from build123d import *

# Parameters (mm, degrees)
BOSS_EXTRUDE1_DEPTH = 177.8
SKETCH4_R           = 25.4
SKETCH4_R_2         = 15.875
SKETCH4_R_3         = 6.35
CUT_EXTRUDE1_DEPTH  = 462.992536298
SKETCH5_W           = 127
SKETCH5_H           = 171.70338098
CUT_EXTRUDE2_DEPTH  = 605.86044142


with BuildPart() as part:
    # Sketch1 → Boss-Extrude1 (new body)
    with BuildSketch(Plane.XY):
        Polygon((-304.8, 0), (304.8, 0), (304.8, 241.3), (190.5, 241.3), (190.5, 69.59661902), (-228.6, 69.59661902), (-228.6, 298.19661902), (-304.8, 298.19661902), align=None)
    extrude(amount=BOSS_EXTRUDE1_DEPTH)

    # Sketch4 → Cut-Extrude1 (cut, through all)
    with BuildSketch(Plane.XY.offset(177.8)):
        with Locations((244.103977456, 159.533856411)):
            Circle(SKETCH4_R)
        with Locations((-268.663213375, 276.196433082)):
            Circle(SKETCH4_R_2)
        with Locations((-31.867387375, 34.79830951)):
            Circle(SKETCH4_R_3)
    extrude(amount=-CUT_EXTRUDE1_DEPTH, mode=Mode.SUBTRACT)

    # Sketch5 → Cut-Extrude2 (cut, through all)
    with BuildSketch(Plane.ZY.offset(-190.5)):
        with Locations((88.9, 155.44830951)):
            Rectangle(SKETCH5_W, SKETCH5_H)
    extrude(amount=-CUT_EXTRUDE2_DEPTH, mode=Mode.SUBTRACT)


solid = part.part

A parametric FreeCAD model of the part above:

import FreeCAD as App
import Part
import Sketcher
from FreeCAD import Vector
Q = App.Units.Quantity

doc = App.newDocument("Part")
body = doc.addObject("PartDesign::Body", "Body")

# Sketch on XY plane
sketch1 = body.newObject("Sketcher::SketchObject", "Sketch")
sketch1.AttachmentSupport = (doc.getObject("XY_Plane"), [""])
sketch1.MapMode = "FlatFace"
sketch1.addGeometry(Part.LineSegment(Vector(-305, 0, 0), Vector(305, 0, 0)), False)
sketch1.addGeometry(Part.LineSegment(Vector(305, 0, 0), Vector(305, 241, 0)), False)
sketch1.addGeometry(Part.LineSegment(Vector(305, 241, 0), Vector(190, 241, 0)), False)
sketch1.addGeometry(Part.LineSegment(Vector(190, 241, 0), Vector(190, 70, 0)), False)
sketch1.addGeometry(Part.LineSegment(Vector(190, 70, 0), Vector(-229, 70, 0)), False)
sketch1.addGeometry(Part.LineSegment(Vector(-229, 70, 0), Vector(-229, 298, 0)), False)
sketch1.addGeometry(Part.LineSegment(Vector(-229, 298, 0), Vector(-305, 298, 0)), False)
sketch1.addGeometry(Part.LineSegment(Vector(-305, 298, 0), Vector(-305, 0, 0)), False)
sketch1.addConstraint(Sketcher.Constraint("Coincident", 0, 2, 1, 1))
sketch1.addConstraint(Sketcher.Constraint("Coincident", 1, 2, 2, 1))
sketch1.addConstraint(Sketcher.Constraint("Coincident", 2, 2, 3, 1))
sketch1.addConstraint(Sketcher.Constraint("Coincident", 3, 2, 4, 1))
sketch1.addConstraint(Sketcher.Constraint("Coincident", 4, 2, 5, 1))
sketch1.addConstraint(Sketcher.Constraint("Coincident", 5, 2, 6, 1))
sketch1.addConstraint(Sketcher.Constraint("Coincident", 6, 2, 7, 1))
sketch1.addConstraint(Sketcher.Constraint("Coincident", 7, 2, 0, 1))
sketch1.addConstraint(Sketcher.Constraint("Horizontal", 0))
sketch1.addConstraint(Sketcher.Constraint("Vertical", 1))
sketch1.addConstraint(Sketcher.Constraint("Horizontal", 2))
sketch1.addConstraint(Sketcher.Constraint("Vertical", 3))
sketch1.addConstraint(Sketcher.Constraint("Horizontal", 4))
sketch1.addConstraint(Sketcher.Constraint("Vertical", 5))
sketch1.addConstraint(Sketcher.Constraint("Horizontal", 6))
sketch1.addConstraint(Sketcher.Constraint("Vertical", 7))
sketch1.addConstraint(Sketcher.Constraint("Symmetric", 0, 2, 7, 2, -1, 1))
sketch1.addConstraint(Sketcher.Constraint("DistanceX", 0, 1, 0, 2, Q("24 in")))
sketch1.addConstraint(Sketcher.Constraint("DistanceX", 6, 2, 6, 1, Q("3 in")))
sketch1.addConstraint(Sketcher.Constraint("DistanceY", 5, 1, 5, 2, Q("9 in")))
sketch1.addConstraint(Sketcher.Constraint("DistanceX", 2, 2, 2, 1, Q("4.5 in")))
sketch1.addConstraint(Sketcher.Constraint("DistanceY", 1, 1, 1, 2, Q("9.5 in")))
sketch1.addConstraint(Sketcher.Constraint("DistanceY", 3, 2, 3, 1, 171.703381))
pad1 = body.newObject("PartDesign::Pad", "Pad")
pad1.Profile = sketch1
pad1.Length = Q("7 in")

# Sketch on XY plane
sketch2 = body.newObject("Sketcher::SketchObject", "Sketch001")
sketch2.AttachmentSupport = (doc.getObject("XY_Plane"), [""])
sketch2.MapMode = "FlatFace"
sketch2.AttachmentOffset = App.Placement(Vector(0, 0, 7 * 25.4), App.Rotation())
sketch2.addGeometry(Part.Circle(Vector(244, 160, 0), Vector(0, 0, 1), 25), False)
sketch2.addGeometry(Part.Circle(Vector(-269, 276, 0), Vector(0, 0, 1), 16), False)
sketch2.addGeometry(Part.Circle(Vector(-32, 35, 0), Vector(0, 0, 1), 6), False)
sketch2.addConstraint(Sketcher.Constraint("Diameter", 0, Q("2 in")))
sketch2.addConstraint(Sketcher.Constraint("Diameter", 2, Q("0.5 in")))
sketch2.addConstraint(Sketcher.Constraint("Diameter", 1, Q("1.25 in")))
sketch2.addConstraint(Sketcher.Constraint("DistanceY", -1, 1, 2, 3, 34.79831))
sketch2.addConstraint(Sketcher.Constraint("DistanceX", 1, 3, 0, 3, 512.767191))
sketch2.addConstraint(Sketcher.Constraint("DistanceX", -1, 1, 0, 3, 244.103977))
sketch2.addConstraint(Sketcher.Constraint("DistanceY", -1, 1, 0, 3, 159.533856))
sketch2.addConstraint(Sketcher.Constraint("DistanceY", -1, 1, 1, 3, 276.196433))
sketch2.addConstraint(Sketcher.Constraint("DistanceX", 2, 3, -1, 1, 31.867387))
pocket1 = body.newObject("PartDesign::Pocket", "Pocket")
pocket1.Profile = sketch2
pocket1.Type = "ThroughAll"

# Sketch on YZ plane
sketch3 = body.newObject("Sketcher::SketchObject", "Sketch002")
sketch3.AttachmentSupport = (doc.getObject("YZ_Plane"), [""])
sketch3.MapMode = "FlatFace"
sketch3.AttachmentOffset = App.Placement(Vector(0, 0, 7.5 * 25.4), App.Rotation())
sketch3.addGeometry(Part.LineSegment(Vector(241, 25, 0), Vector(70, 25, 0)), False)
sketch3.addGeometry(Part.LineSegment(Vector(70, 25, 0), Vector(70, 152, 0)), False)
sketch3.addGeometry(Part.LineSegment(Vector(70, 152, 0), Vector(241, 152, 0)), False)
sketch3.addGeometry(Part.LineSegment(Vector(241, 152, 0), Vector(241, 25, 0)), False)
sketch3.addConstraint(Sketcher.Constraint("Coincident", 0, 2, 1, 1))
sketch3.addConstraint(Sketcher.Constraint("Coincident", 1, 2, 2, 1))
sketch3.addConstraint(Sketcher.Constraint("Coincident", 2, 2, 3, 1))
sketch3.addConstraint(Sketcher.Constraint("Coincident", 3, 2, 0, 1))
sketch3.addConstraint(Sketcher.Constraint("Horizontal", 0))
sketch3.addConstraint(Sketcher.Constraint("Vertical", 1))
sketch3.addConstraint(Sketcher.Constraint("Horizontal", 2))
sketch3.addConstraint(Sketcher.Constraint("Vertical", 3))
sketch3.addConstraint(Sketcher.Constraint("DistanceY", 1, 1, 1, 2, Q("5 in")))
sketch3.addConstraint(Sketcher.Constraint("DistanceY", -1, 1, 0, 2, Q("1 in")))
sketch3.addConstraint(Sketcher.Constraint("DistanceX", -1, 1, 2, 2, Q("9.5 in")))
sketch3.addConstraint(Sketcher.Constraint("DistanceX", 0, 2, 0, 1, 171.703381))
pocket2 = body.newObject("PartDesign::Pocket", "Pocket001")
pocket2.Profile = sketch3
pocket2.Type = "ThroughAll"
pocket2.Reversed = True

doc.recompute()
